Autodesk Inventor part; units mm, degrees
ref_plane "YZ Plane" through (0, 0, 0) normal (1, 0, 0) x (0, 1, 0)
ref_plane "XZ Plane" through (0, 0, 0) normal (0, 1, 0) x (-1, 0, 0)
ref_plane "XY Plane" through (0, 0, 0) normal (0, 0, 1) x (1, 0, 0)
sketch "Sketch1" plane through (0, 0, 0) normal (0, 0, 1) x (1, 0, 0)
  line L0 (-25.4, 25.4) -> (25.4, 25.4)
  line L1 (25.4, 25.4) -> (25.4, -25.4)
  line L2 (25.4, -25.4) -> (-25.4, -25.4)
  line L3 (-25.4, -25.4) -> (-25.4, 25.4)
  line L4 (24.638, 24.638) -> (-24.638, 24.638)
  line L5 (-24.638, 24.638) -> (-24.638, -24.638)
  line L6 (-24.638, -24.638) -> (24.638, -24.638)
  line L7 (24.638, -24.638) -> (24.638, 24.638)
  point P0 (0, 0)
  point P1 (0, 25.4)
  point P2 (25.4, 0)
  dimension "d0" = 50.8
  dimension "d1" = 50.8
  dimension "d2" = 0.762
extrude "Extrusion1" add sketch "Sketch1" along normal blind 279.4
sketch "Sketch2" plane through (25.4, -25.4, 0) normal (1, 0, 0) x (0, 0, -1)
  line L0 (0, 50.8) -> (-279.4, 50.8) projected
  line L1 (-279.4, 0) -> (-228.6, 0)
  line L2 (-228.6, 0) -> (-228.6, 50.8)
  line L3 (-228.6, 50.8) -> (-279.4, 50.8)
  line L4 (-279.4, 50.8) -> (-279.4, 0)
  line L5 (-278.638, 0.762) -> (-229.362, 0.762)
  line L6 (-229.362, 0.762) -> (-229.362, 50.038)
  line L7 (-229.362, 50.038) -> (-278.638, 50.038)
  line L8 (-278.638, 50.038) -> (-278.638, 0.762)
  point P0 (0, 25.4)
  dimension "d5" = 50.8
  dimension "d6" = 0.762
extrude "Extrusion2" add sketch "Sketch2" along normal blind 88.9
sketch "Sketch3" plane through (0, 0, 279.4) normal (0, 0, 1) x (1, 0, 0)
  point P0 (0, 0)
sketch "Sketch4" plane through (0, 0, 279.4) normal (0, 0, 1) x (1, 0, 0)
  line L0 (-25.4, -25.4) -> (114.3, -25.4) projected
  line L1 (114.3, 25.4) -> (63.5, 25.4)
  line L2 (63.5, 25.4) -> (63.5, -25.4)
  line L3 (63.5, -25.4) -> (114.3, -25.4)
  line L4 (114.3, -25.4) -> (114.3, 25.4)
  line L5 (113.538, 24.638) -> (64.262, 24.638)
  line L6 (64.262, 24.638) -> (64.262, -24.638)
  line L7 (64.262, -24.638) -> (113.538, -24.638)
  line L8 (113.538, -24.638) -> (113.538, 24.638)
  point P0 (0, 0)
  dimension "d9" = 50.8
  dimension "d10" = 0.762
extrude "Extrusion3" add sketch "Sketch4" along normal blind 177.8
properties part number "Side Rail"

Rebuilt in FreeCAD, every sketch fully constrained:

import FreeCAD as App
import Part
import Sketcher
Q = App.Units.Quantity

doc = App.newDocument("Part")
body = doc.addObject("PartDesign::Body", "Body")

# Sketch on XY plane
sketch1 = body.newObject("Sketcher::SketchObject", "Sketch")
sketch1.AttachmentSupport = (doc.getObject("XY_Plane"), [""])
sketch1.MapMode = "FlatFace"
sketch1.addGeometry(Part.LineSegment(App.Vector(25, 25, 0), App.Vector(-25, 25, 0)), False)
sketch1.addGeometry(Part.LineSegment(App.Vector(-25, 25, 0), App.Vector(-25, -25, 0)), False)
sketch1.addGeometry(Part.LineSegment(App.Vector(-25, -25, 0), App.Vector(25, -25, 0)), False)
sketch1.addGeometry(Part.LineSegment(App.Vector(25, -25, 0), App.Vector(25, 25, 0)), False)
sketch1.addGeometry(Part.LineSegment(App.Vector(-25, 25, 0), App.Vector(25, 25, 0)), False)
sketch1.addGeometry(Part.LineSegment(App.Vector(25, 25, 0), App.Vector(25, -25, 0)), False)
sketch1.addGeometry(Part.LineSegment(App.Vector(25, -25, 0), App.Vector(-25, -25, 0)), False)
sketch1.addGeometry(Part.LineSegment(App.Vector(-25, -25, 0), App.Vector(-25, 25, 0)), False)
sketch1.addConstraint(Sketcher.Constraint("Coincident", 0, 2, 1, 1))
sketch1.addConstraint(Sketcher.Constraint("Coincident", 1, 2, 2, 1))
sketch1.addConstraint(Sketcher.Constraint("Coincident", 2, 2, 3, 1))
sketch1.addConstraint(Sketcher.Constraint("Coincident", 3, 2, 0, 1))
sketch1.addConstraint(Sketcher.Constraint("Coincident", 4, 2, 5, 1))
sketch1.addConstraint(Sketcher.Constraint("Coincident", 5, 2, 6, 1))
sketch1.addConstraint(Sketcher.Constraint("Coincident", 6, 2, 7, 1))
sketch1.addConstraint(Sketcher.Constraint("Coincident", 7, 2, 4, 1))
sketch1.addConstraint(Sketcher.Constraint("Horizontal", 0))
sketch1.addConstraint(Sketcher.Constraint("Vertical", 1))
sketch1.addConstraint(Sketcher.Constraint("Horizontal", 2))
sketch1.addConstraint(Sketcher.Constraint("Vertical", 3))
sketch1.addConstraint(Sketcher.Constraint("Horizontal", 4))
sketch1.addConstraint(Sketcher.Constraint("Vertical", 5))
sketch1.addConstraint(Sketcher.Constraint("Horizontal", 6))
sketch1.addConstraint(Sketcher.Constraint("Vertical", 7))
sketch1.addConstraint(Sketcher.Constraint("Symmetric", 0, 2, 2, 2, -1, 1))
sketch1.addConstraint(Sketcher.Constraint("Symmetric", 4, 2, 6, 2, -1, 1))
sketch1.addConstraint(Sketcher.Constraint("Equal", 2, 1))
sketch1.addConstraint(Sketcher.Constraint("Equal", 6, 5))
sketch1.addConstraint(Sketcher.Constraint("DistanceX", 0, 2, 0, 1, Q("2 in")))
sketch1.addConstraint(Sketcher.Constraint("DistanceX", 4, 2, 3, 2, Q("0.03 in")))
pad1 = body.newObject("PartDesign::Pad", "Pad")
pad1.Profile = sketch1
pad1.Length = Q("11 in")

# Sketch on YZ plane
sketch2 = body.newObject("Sketcher::SketchObject", "Sketch001")
sketch2.AttachmentSupport = (doc.getObject("YZ_Plane"), [""])
sketch2.MapMode = "FlatFace"
sketch2.AttachmentOffset = App.Placement(App.Vector(0, 0, 1 * 25.4), App.Rotation())
sketch2.addGeometry(Part.LineSegment(App.Vector(-25, 229, 0), App.Vector(25, 229, 0)), False)
sketch2.addGeometry(Part.LineSegment(App.Vector(25, 229, 0), App.Vector(25, 279, 0)), False)
sketch2.addGeometry(Part.LineSegment(App.Vector(25, 279, 0), App.Vector(-25, 279, 0)), False)
sketch2.addGeometry(Part.LineSegment(App.Vector(-25, 279, 0), App.Vector(-25, 229, 0)), False)
sketch2.addGeometry(Part.LineSegment(App.Vector(-25, 229, 0), App.Vector(-25, 279, 0)), False)
sketch2.addGeometry(Part.LineSegment(App.Vector(-25, 279, 0), App.Vector(25, 279, 0)), False)
sketch2.addGeometry(Part.LineSegment(App.Vector(25, 279, 0), App.Vector(25, 229, 0)), False)
sketch2.addGeometry(Part.LineSegment(App.Vector(25, 229, 0), App.Vector(-25, 229, 0)), False)
sketch2.addConstraint(Sketcher.Constraint("Coincident", 0, 2, 1, 1))
sketch2.addConstraint(Sketcher.Constraint("Coincident", 1, 2, 2, 1))
sketch2.addConstraint(Sketcher.Constraint("Coincident", 2, 2, 3, 1))
sketch2.addConstraint(Sketcher.Constraint("Coincident", 3, 2, 0, 1))
sketch2.addConstraint(Sketcher.Constraint("Coincident", 4, 2, 5, 1))
sketch2.addConstraint(Sketcher.Constraint("Coincident", 5, 2, 6, 1))
sketch2.addConstraint(Sketcher.Constraint("Coincident", 6, 2, 7, 1))
sketch2.addConstraint(Sketcher.Constraint("Coincident", 7, 2, 4, 1))
sketch2.addConstraint(Sketcher.Constraint("Horizontal", 0))
sketch2.addConstraint(Sketcher.Constraint("Vertical", 1))
sketch2.addConstraint(Sketcher.Constraint("Horizontal", 2))
sketch2.addConstraint(Sketcher.Constraint("Vertical", 3))
sketch2.addConstraint(Sketcher.Constraint("Vertical", 4))
sketch2.addConstraint(Sketcher.Constraint("Horizontal", 5))
sketch2.addConstraint(Sketcher.Constraint("Vertical", 6))
sketch2.addConstraint(Sketcher.Constraint("Horizontal", 7))
sketch2.addConstraint(Sketcher.Constraint("Equal", 2, 1))
sketch2.addConstraint(Sketcher.Constraint("Equal", 7, 4))
sketch2.addConstraint(Sketcher.Constraint("DistanceX", 0, 1, 0, 2, Q("2 in")))
sketch2.addConstraint(Sketcher.Constraint("DistanceX", 2, 2, 4, 2, Q("0.03 in")))
sketch2.addConstraint(Sketcher.Constraint("DistanceY", 4, 2, 2, 2, Q("0.03 in")))
sketch2.addConstraint(Sketcher.Constraint("DistanceX", 5, 2, 1, 2, Q("0.03 in")))
sketch2.addConstraint(Sketcher.Constraint("DistanceX", -1, 1, 0, 2, Q("1 in")))
sketch2.addConstraint(Sketcher.Constraint("DistanceY", -1, 1, 0, 2, Q("9 in")))
pad2 = body.newObject("PartDesign::Pad", "Pad001")
pad2.Profile = sketch2
pad2.Length = Q("3.5 in")

# Sketch on XY plane
sketch3 = body.newObject("Sketcher::SketchObject", "Sketch002")
sketch3.AttachmentSupport = (doc.getObject("XY_Plane"), [""])
sketch3.MapMode = "FlatFace"
sketch3.AttachmentOffset = App.Placement(App.Vector(0, 0, 11 * 25.4), App.Rotation())
sketch3.addGeometry(Part.LineSegment(App.Vector(64, 25, 0), App.Vector(64, -25, 0)), False)
sketch3.addGeometry(Part.LineSegment(App.Vector(64, -25, 0), App.Vector(114, -25, 0)), False)
sketch3.addGeometry(Part.LineSegment(App.Vector(114, -25, 0), App.Vector(114, 25, 0)), False)
sketch3.addGeometry(Part.LineSegment(App.Vector(114, 25, 0), App.Vector(64, 25, 0)), False)
sketch3.addGeometry(Part.LineSegment(App.Vector(64, 25, 0), App.Vector(114, 25, 0)), False)
sketch3.addGeometry(Part.LineSegment(App.Vector(114, 25, 0), App.Vector(114, -25, 0)), False)
sketch3.addGeometry(Part.LineSegment(App.Vector(114, -25, 0), App.Vector(64, -25, 0)), False)
sketch3.addGeometry(Part.LineSegment(App.Vector(64, -25, 0), App.Vector(64, 25, 0)), False)
sketch3.addConstraint(Sketcher.Constraint("Coincident", 0, 2, 1, 1))
sketch3.addConstraint(Sketcher.Constraint("Coincident", 1, 2, 2, 1))
sketch3.addConstraint(Sketcher.Constraint("Coincident", 2, 2, 3, 1))
sketch3.addConstraint(Sketcher.Constraint("Coincident", 3, 2, 0, 1))
sketch3.addConstraint(Sketcher.Constraint("Coincident", 4, 2, 5, 1))
sketch3.addConstraint(Sketcher.Constraint("Coincident", 5, 2, 6, 1))
sketch3.addConstraint(Sketcher.Constraint("Coincident", 6, 2, 7, 1))
sketch3.addConstraint(Sketcher.Constraint("Coincident", 7, 2, 4, 1))
sketch3.addConstraint(Sketcher.Constraint("Vertical", 0))
sketch3.addConstraint(Sketcher.Constraint("Horizontal", 1))
sketch3.addConstraint(Sketcher.Constraint("Vertical", 2))
sketch3.addConstraint(Sketcher.Constraint("Horizontal", 3))
sketch3.addConstraint(Sketcher.Constraint("Horizontal", 4))
sketch3.addConstraint(Sketcher.Constraint("Vertical", 5))
sketch3.addConstraint(Sketcher.Constraint("Horizontal", 6))
sketch3.addConstraint(Sketcher.Constraint("Vertical", 7))
sketch3.addConstraint(Sketcher.Constraint("Equal", 3, 0))
sketch3.addConstraint(Sketcher.Constraint("Equal", 6, 5))
sketch3.addConstraint(Sketcher.Constraint("DistanceX", 1, 1, 1, 2, Q("2 in")))
sketch3.addConstraint(Sketcher.Constraint("DistanceX", 4, 2, 2, 2, Q("0.03 in")))
sketch3.addConstraint(Sketcher.Constraint("DistanceY", 4, 2, 2, 2, Q("0.03 in")))
sketch3.addConstraint(Sketcher.Constraint("DistanceY", 1, 2, 5, 2, Q("0.03 in")))
sketch3.addConstraint(Sketcher.Constraint("DistanceY", 0, 2, -1, 1, Q("1 in")))
sketch3.addConstraint(Sketcher.Constraint("DistanceX", -1, 1, 0, 2, Q("2.5 in")))
pad3 = body.newObject("PartDesign::Pad", "Pad002")
pad3.Profile = sketch3
pad3.Length = Q("7 in")

doc.recompute()
